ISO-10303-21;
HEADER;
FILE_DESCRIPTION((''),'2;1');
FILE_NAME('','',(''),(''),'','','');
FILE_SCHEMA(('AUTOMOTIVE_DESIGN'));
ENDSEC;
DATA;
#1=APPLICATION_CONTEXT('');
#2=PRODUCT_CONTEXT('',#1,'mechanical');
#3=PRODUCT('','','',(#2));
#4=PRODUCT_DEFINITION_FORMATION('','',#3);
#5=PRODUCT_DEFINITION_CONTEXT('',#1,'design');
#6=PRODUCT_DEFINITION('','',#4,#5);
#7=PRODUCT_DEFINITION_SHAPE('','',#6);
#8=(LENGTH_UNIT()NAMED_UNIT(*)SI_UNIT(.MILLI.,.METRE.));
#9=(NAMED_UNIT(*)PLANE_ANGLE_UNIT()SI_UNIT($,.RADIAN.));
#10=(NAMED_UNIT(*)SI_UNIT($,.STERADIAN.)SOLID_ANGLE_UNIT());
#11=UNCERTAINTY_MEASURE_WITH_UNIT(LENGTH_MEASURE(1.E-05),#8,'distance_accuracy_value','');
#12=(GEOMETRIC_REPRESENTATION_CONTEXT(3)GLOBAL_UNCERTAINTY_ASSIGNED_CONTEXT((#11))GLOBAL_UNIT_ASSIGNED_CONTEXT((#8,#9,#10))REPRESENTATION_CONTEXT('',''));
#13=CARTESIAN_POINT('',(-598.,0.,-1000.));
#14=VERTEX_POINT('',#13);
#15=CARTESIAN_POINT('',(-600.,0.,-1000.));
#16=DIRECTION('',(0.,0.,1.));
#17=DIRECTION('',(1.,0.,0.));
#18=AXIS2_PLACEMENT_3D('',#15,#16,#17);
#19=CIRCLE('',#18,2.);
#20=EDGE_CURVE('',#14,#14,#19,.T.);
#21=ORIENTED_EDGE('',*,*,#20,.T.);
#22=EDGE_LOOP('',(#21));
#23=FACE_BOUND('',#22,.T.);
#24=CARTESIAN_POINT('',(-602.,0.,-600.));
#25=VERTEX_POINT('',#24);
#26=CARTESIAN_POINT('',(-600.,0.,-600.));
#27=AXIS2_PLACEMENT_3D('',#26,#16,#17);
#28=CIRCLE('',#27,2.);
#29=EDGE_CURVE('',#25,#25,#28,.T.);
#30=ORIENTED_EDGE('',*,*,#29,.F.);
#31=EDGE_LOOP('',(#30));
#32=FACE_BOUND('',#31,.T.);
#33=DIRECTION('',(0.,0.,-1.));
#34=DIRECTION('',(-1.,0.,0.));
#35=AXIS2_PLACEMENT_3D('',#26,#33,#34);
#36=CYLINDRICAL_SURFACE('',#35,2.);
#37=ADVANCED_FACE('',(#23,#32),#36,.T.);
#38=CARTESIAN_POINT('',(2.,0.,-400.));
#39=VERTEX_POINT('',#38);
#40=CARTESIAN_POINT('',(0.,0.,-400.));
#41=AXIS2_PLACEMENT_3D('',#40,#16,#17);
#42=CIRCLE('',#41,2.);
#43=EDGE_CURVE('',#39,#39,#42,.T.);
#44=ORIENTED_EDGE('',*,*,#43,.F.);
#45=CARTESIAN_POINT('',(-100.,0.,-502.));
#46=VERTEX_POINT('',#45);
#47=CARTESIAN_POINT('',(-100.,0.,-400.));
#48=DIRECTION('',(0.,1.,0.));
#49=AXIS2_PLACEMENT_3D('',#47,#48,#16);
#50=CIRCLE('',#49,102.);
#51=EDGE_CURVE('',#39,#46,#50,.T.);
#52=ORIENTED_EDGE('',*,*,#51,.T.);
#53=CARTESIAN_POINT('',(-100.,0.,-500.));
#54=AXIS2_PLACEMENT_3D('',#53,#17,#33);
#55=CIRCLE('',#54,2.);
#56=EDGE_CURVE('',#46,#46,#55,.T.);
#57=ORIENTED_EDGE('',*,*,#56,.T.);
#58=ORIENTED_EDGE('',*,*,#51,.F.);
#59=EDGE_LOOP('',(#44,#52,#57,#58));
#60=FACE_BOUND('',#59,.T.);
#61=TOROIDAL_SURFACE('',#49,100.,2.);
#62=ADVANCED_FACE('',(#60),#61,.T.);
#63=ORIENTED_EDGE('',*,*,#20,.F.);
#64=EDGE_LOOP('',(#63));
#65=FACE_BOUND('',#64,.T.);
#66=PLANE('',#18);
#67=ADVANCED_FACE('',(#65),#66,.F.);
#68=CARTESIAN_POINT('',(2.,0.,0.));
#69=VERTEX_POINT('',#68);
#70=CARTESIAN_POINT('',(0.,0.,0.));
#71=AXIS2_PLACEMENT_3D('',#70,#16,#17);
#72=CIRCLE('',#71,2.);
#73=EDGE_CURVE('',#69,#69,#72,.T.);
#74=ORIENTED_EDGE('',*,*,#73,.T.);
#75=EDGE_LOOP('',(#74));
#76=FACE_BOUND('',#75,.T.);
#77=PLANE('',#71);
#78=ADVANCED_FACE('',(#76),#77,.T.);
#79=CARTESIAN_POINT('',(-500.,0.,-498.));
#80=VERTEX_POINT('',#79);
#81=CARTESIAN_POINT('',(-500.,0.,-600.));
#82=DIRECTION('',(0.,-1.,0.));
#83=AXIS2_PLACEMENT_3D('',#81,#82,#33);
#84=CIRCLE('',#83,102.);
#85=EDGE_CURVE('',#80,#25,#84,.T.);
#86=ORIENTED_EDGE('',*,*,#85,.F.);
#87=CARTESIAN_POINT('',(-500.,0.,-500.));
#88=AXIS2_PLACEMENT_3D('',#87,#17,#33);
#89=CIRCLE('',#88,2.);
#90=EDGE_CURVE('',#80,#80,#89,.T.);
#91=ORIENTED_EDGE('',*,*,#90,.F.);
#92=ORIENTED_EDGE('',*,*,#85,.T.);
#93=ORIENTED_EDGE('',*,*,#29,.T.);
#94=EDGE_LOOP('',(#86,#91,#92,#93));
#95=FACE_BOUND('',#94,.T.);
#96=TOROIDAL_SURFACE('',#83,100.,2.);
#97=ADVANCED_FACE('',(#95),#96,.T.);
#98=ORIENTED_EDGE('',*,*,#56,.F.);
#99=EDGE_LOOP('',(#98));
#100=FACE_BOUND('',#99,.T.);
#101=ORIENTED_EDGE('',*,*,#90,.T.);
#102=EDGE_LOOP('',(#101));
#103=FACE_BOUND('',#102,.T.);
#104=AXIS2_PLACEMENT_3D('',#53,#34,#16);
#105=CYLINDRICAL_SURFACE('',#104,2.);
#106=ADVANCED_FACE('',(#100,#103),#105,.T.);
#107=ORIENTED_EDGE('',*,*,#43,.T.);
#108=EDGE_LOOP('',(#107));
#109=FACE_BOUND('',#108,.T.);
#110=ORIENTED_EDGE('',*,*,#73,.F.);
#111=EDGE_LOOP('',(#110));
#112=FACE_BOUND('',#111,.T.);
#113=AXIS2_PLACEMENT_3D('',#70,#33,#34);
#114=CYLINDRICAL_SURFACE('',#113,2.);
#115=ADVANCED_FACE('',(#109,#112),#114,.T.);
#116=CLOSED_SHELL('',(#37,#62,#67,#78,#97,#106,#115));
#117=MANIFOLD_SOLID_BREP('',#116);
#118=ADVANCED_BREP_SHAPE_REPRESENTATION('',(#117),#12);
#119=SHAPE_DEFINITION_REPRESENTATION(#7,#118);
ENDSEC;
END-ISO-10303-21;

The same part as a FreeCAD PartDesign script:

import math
import FreeCAD as App
import Part
import Sketcher
from FreeCAD import Vector

doc = App.newDocument("Part")
body = doc.addObject("PartDesign::Body", "Body")

sketch1 = body.newObject("Sketcher::SketchObject", "Sketch")
sketch1.AttachmentSupport = (doc.getObject("XY_Plane"), [""])
sketch1.MapMode = "FlatFace"
sketch1.addGeometry(Part.Circle(Vector(0, 0, 0), Vector(0, 0, 1), 2), False)
sketch1.addConstraint([
    Sketcher.Constraint("Coincident", 0, 3, -1, 1),
    Sketcher.Constraint("Diameter", 0, 4.0),
])

sketch2 = body.newObject("Sketcher::SketchObject", "Sketch001")
sketch2.AttachmentSupport = (doc.getObject("XZ_Plane"), [""])
sketch2.MapMode = "FlatFace"
sketch2.addGeometry([
    Part.LineSegment(Vector(0, 0, 0), Vector(0, -400, 0)),
    Part.ArcOfCircle(Part.Circle(Vector(-100, -400, 0), Vector(0, 0, 1), 100), math.radians(-90), math.radians(0)),
    Part.LineSegment(Vector(-100, -500, 0), Vector(-500, -500, 0)),
    Part.ArcOfCircle(Part.Circle(Vector(-500, -600, 0), Vector(0, 0, 1), 100), math.radians(90), math.radians(180)),
    Part.LineSegment(Vector(-600, -600, 0), Vector(-600, -1000, 0)),
], False)
sketch2.addConstraint([
    Sketcher.Constraint("Tangent", 0, 2, 1, 2),
    Sketcher.Constraint("Tangent", 1, 1, 2, 1),
    Sketcher.Constraint("Tangent", 2, 2, 3, 1),
    Sketcher.Constraint("Tangent", 3, 2, 4, 1),
    Sketcher.Constraint("Vertical", 0),
    Sketcher.Constraint("Horizontal", 2),
    Sketcher.Constraint("Vertical", 4),
    Sketcher.Constraint("Coincident", 0, 1, -1, 1),
    Sketcher.Constraint("Equal", 1, 3),
    Sketcher.Constraint("Equal", 2, 0),
    Sketcher.Constraint("Equal", 0, 4),
    Sketcher.Constraint("Radius", 1, 100.0),
    Sketcher.Constraint("DistanceX", 2, 2, 2, 1, 400.0),
])
doc.recompute()

additivepipe = body.newObject("PartDesign::AdditivePipe", "AdditivePipe")
additivepipe.Profile = sketch1
additivepipe.Spine = (sketch2, ["Edge1", "Edge2", "Edge3", "Edge4", "Edge5"])

doc.recompute()
